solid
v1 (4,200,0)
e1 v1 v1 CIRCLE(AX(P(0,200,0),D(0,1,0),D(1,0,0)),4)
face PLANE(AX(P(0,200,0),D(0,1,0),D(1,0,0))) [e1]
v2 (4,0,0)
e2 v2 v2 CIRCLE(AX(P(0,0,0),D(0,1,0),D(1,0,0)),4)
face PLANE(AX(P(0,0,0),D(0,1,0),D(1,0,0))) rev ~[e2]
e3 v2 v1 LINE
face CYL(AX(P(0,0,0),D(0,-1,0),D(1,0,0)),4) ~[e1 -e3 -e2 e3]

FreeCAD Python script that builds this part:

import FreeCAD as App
import Part
import Sketcher
from FreeCAD import Vector
Q = App.Units.Quantity

doc = App.newDocument("Part")
params = doc.addObject("Spreadsheet::Sheet", "Params")
for row, (alias, value) in enumerate([
    ("sketch1_diameter", "8 mm"),
    ("pad1_length", "200 mm"),
], start=1):
    params.set(f"A{row}", alias)
    params.set(f"B{row}", "=" + value)
    params.setAlias(f"B{row}", alias)

body = doc.addObject("PartDesign::Body", "Body")

sketch1 = doc.addObject("Sketcher::SketchObject", "Sketch")
body.addObject(sketch1)
sketch1.AttachmentSupport = (doc.XZ_Plane, [""])
sketch1.MapMode = "FlatFace"
sketch1.addGeometry(Part.Circle(Vector(0, 0, 0), Vector(0, 0, 1), 4), False)
sketch1.addConstraint([
    Sketcher.Constraint("Coincident", 0, 3, -1, 1),
    Sketcher.Constraint("Diameter", 0, Q("8 mm")),
])
sketch1.setExpression("Constraints[1]", "Params.sketch1_diameter")
pad1 = doc.addObject("PartDesign::Pad", "Pad")
body.addObject(pad1)
pad1.Profile = sketch1
pad1.setExpression("Length", "Params.pad1_length")
pad1.Reversed = True

doc.recompute()
